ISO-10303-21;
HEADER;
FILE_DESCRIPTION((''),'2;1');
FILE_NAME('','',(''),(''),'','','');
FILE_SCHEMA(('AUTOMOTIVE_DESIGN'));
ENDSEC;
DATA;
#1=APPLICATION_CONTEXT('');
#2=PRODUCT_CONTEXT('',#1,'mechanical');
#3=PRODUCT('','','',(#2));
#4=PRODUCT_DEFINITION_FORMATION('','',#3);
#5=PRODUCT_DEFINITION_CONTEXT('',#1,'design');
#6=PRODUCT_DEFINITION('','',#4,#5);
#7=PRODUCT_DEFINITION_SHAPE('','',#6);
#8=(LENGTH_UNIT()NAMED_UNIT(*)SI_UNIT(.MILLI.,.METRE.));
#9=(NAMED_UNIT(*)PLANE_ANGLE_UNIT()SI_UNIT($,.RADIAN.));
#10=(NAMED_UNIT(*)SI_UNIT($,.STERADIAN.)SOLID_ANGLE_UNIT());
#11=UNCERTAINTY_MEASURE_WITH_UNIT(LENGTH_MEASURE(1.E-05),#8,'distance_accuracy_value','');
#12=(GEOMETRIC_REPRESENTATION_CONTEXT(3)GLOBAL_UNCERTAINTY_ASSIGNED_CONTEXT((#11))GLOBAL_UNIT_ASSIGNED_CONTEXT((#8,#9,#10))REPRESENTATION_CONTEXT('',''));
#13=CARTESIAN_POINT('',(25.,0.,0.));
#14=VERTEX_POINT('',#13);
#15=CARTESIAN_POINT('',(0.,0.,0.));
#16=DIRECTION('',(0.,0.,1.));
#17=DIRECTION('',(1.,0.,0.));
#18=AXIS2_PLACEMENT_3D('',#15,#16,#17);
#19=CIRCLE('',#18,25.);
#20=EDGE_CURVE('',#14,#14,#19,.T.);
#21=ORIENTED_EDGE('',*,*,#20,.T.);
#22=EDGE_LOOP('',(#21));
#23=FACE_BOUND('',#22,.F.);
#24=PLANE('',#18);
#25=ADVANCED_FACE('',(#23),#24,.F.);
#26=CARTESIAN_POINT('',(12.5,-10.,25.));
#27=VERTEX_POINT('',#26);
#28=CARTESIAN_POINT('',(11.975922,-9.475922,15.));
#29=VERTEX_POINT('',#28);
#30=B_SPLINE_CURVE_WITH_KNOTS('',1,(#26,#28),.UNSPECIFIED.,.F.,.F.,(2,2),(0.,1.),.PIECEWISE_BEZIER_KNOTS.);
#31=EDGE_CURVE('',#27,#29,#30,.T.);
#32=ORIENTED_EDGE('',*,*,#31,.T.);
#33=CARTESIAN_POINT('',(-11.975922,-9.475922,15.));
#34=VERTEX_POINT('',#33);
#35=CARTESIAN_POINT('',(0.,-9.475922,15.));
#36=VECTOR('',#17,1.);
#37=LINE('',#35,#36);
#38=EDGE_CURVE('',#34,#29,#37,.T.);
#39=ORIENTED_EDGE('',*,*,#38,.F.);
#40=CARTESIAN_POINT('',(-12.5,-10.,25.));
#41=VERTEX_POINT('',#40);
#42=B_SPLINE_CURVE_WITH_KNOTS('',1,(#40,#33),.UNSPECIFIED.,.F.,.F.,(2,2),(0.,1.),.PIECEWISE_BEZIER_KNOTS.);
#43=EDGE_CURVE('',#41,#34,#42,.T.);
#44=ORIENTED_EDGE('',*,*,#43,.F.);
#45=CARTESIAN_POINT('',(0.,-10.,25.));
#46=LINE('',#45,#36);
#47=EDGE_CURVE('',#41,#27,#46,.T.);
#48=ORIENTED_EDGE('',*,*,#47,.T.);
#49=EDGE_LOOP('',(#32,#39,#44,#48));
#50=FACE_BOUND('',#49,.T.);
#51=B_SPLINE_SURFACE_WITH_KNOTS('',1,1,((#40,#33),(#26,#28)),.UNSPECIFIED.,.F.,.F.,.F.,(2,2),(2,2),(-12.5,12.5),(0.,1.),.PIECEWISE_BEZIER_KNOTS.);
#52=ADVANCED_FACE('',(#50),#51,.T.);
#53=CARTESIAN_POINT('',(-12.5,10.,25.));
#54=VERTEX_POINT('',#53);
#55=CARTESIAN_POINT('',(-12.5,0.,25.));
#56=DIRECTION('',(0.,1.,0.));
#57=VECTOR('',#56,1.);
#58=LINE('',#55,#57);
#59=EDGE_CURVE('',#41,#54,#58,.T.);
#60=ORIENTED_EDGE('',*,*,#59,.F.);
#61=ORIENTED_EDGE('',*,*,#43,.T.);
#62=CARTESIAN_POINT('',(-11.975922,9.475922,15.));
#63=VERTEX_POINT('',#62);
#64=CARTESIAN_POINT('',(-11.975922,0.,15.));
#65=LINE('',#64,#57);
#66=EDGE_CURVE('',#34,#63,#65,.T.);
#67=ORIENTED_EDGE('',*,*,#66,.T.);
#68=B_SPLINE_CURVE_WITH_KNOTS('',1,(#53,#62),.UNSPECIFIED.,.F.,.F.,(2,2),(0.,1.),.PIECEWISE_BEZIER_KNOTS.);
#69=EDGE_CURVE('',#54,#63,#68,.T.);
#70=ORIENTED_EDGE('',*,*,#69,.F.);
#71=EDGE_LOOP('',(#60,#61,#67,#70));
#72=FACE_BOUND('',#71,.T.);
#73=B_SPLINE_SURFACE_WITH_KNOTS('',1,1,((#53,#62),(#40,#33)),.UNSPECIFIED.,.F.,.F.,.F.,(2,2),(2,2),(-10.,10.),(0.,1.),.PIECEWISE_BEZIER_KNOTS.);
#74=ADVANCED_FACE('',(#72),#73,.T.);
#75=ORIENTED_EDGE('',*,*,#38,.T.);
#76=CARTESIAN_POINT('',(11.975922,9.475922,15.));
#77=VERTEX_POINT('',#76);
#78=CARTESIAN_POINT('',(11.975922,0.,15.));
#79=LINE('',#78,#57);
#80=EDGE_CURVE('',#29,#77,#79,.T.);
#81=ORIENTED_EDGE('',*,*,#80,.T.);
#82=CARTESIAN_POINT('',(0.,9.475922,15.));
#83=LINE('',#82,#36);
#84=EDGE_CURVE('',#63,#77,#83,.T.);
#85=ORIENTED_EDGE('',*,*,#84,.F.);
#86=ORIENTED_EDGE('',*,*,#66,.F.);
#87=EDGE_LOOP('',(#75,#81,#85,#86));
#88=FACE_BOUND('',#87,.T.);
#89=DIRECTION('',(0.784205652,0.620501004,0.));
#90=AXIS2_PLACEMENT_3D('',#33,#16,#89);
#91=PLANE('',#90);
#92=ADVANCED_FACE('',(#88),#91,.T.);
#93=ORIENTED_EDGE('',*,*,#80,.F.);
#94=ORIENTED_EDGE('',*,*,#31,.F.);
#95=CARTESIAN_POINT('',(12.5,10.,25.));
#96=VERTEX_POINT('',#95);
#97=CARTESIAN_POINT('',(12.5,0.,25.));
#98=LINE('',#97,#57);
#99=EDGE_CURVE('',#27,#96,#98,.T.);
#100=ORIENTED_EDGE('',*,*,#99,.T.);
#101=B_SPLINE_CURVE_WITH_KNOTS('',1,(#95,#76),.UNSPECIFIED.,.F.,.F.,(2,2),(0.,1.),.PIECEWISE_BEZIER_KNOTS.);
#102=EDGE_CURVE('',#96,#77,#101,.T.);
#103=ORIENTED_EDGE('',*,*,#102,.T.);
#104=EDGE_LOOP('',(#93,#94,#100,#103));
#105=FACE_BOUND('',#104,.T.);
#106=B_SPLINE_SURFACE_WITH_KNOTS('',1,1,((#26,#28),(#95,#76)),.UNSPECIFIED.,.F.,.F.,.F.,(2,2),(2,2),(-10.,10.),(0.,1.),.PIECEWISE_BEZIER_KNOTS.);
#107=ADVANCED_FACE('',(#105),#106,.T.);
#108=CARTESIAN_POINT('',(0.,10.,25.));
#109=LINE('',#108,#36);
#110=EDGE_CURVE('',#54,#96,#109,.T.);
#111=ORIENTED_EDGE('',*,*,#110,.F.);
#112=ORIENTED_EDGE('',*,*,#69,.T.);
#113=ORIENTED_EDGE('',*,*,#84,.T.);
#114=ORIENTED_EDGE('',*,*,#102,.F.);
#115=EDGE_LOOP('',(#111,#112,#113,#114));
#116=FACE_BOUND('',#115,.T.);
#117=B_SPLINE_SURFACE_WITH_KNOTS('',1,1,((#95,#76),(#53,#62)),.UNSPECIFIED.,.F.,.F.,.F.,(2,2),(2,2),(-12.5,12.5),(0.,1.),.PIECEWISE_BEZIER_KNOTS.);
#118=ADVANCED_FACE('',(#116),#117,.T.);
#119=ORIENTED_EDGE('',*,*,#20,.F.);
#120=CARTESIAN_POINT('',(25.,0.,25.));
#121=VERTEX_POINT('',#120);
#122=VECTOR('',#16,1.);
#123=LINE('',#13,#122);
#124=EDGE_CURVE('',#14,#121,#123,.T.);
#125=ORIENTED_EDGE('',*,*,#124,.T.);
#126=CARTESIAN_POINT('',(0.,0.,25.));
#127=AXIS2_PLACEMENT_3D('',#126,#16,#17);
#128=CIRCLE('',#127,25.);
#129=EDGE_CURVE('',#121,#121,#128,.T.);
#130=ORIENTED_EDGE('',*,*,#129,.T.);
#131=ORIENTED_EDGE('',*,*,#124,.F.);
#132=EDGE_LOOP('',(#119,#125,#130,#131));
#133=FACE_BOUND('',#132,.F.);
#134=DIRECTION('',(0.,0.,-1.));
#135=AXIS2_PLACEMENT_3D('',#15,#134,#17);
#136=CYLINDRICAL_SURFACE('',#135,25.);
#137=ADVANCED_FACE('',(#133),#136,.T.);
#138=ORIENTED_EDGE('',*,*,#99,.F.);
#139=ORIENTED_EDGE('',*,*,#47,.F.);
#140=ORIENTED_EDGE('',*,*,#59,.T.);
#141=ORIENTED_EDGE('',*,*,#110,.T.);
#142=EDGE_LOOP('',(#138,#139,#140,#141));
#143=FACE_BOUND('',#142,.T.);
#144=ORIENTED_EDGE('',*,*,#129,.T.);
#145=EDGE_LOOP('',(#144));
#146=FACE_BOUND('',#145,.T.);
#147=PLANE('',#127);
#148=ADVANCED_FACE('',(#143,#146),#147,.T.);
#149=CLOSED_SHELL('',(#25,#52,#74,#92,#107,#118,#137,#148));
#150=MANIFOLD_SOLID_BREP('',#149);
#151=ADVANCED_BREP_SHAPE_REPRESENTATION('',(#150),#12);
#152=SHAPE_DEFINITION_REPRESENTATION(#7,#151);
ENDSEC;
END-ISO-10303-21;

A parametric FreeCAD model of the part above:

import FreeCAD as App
import Part
import Sketcher

V = App.Vector
Q = App.Units.Quantity

doc = App.newDocument("Part")
params = doc.addObject("Spreadsheet::Sheet", "Params")
for row, (alias, value) in enumerate([
    ("sketch1_diameter", "50 mm"),
    ("pad1_length", "25 mm"),
    ("sketch2_width", "25 mm"),
    ("sketch2_height", "20 mm"),
    ("pocket1_length", "10 mm"),
    ("pocket1_taper", "-3 deg"),
], start=1):
    params.set(f"A{row}", alias)
    params.set(f"B{row}", "=" + value)
    params.setAlias(f"B{row}", alias)

body = doc.addObject("PartDesign::Body", "Body")

sketch1 = doc.addObject("Sketcher::SketchObject", "Sketch")
body.addObject(sketch1)
sketch1.AttachmentSupport = (doc.XY_Plane, [""])
sketch1.MapMode = "FlatFace"
sketch1.addGeometry(Part.Circle(V(0, 0, 0), V(0, 0, 1), 25), False)
sketch1.addConstraint(Sketcher.Constraint("Coincident", 0, 3, -1, 1))
sketch1.addConstraint(Sketcher.Constraint("Diameter", 0, Q("50 mm")))
sketch1.setExpression("Constraints[1]", "Params.sketch1_diameter")
pad1 = doc.addObject("PartDesign::Pad", "Pad")
body.addObject(pad1)
pad1.Profile = sketch1
pad1.setExpression("Length", "Params.pad1_length")

sketch2 = doc.addObject("Sketcher::SketchObject", "Sketch001")
body.addObject(sketch2)
sketch2.AttachmentSupport = (doc.XY_Plane, [""])
sketch2.MapMode = "FlatFace"
sketch2.AttachmentOffset = App.Placement(V(0, 0, 25), App.Rotation())
sketch2.addGeometry(Part.LineSegment(V(-12, 10, 0), V(-12, -10, 0)), False)
sketch2.addGeometry(Part.LineSegment(V(-12, -10, 0), V(12, -10, 0)), False)
sketch2.addGeometry(Part.LineSegment(V(12, -10, 0), V(12, 10, 0)), False)
sketch2.addGeometry(Part.LineSegment(V(12, 10, 0), V(-12, 10, 0)), False)
sketch2.addConstraint(Sketcher.Constraint("Coincident", 0, 2, 1, 1))
sketch2.addConstraint(Sketcher.Constraint("Coincident", 1, 2, 2, 1))
sketch2.addConstraint(Sketcher.Constraint("Coincident", 2, 2, 3, 1))
sketch2.addConstraint(Sketcher.Constraint("Coincident", 3, 2, 0, 1))
sketch2.addConstraint(Sketcher.Constraint("Vertical", 0))
sketch2.addConstraint(Sketcher.Constraint("Horizontal", 1))
sketch2.addConstraint(Sketcher.Constraint("Vertical", 2))
sketch2.addConstraint(Sketcher.Constraint("Horizontal", 3))
sketch2.addConstraint(Sketcher.Constraint("Symmetric", 0, 2, 2, 2, -1, 1))
sketch2.addConstraint(Sketcher.Constraint("DistanceX", 1, 1, 1, 2, Q("25 mm")))
sketch2.addConstraint(Sketcher.Constraint("DistanceY", 0, 2, 0, 1, Q("20 mm")))
sketch2.setExpression("Constraints[9]", "Params.sketch2_width")
sketch2.setExpression("Constraints[10]", "Params.sketch2_height")
pocket1 = doc.addObject("PartDesign::Pocket", "Pocket")
body.addObject(pocket1)
pocket1.Profile = sketch2
pocket1.setExpression("Length", "Params.pocket1_length")
pocket1.setExpression("TaperAngle", "Params.pocket1_taper")

doc.recompute()
